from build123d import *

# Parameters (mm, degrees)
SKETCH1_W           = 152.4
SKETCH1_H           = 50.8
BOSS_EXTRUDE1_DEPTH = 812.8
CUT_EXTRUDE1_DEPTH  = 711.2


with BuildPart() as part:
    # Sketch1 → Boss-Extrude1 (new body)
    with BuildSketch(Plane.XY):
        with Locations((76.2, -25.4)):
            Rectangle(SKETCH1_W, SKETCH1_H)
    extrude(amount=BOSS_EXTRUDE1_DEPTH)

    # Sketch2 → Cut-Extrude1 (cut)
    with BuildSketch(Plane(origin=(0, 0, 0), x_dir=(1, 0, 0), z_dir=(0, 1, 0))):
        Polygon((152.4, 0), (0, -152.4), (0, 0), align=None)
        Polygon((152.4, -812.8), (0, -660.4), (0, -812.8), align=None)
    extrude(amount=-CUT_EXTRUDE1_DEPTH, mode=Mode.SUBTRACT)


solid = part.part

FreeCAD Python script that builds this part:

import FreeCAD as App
import Part
import Sketcher

V = App.Vector
Q = App.Units.Quantity


def add_polygon(sketch, points):
    """Adds a closed chain of lines whose ends are joined by coincident constraints."""
    first, n = sketch.GeometryCount, len(points)
    for a, b in zip(points, points[1:] + points[:1]):
        sketch.addGeometry(Part.LineSegment(App.Vector(*a, 0), App.Vector(*b, 0)), False)
    for i in range(n):
        sketch.addConstraint(Sketcher.Constraint("Coincident", first + i, 2, first + (i + 1) % n, 1))

doc = App.newDocument("Part")
body = doc.addObject("PartDesign::Body", "Body")

# Sketch on XY plane
sketch1 = doc.addObject("Sketcher::SketchObject", "Sketch")
body.addObject(sketch1)
sketch1.AttachmentSupport = (doc.XY_Plane, [""])
sketch1.MapMode = "FlatFace"
add_polygon(sketch1, [(0, 0), (0, -51), (152, -51), (152, 0)])  # lines 0-3
sketch1.addConstraint(Sketcher.Constraint("Vertical", 0))
sketch1.addConstraint(Sketcher.Constraint("Horizontal", 1))
sketch1.addConstraint(Sketcher.Constraint("Vertical", 2))
sketch1.addConstraint(Sketcher.Constraint("Horizontal", 3))
sketch1.addConstraint(Sketcher.Constraint("Coincident", 3, 2, -1, 1))
sketch1.addConstraint(Sketcher.Constraint("DistanceX", 1, 1, 1, 2, Q("6 in")))
sketch1.addConstraint(Sketcher.Constraint("DistanceY", 0, 2, 0, 1, Q("2 in")))
pad1 = doc.addObject("PartDesign::Pad", "Pad")
body.addObject(pad1)
pad1.Profile = sketch1
pad1.Length = Q("32 in")

# Sketch on XZ plane
sketch2 = doc.addObject("Sketcher::SketchObject", "Sketch001")
body.addObject(sketch2)
sketch2.AttachmentSupport = (doc.XZ_Plane, [""])
sketch2.MapMode = "FlatFace"
add_polygon(sketch2, [(0, 152), (152, 0), (0, 0)])  # lines 0-2
add_polygon(sketch2, [(152, 813), (0, 660), (0, 813)])  # lines 3-5
sketch2.addConstraint(Sketcher.Constraint("Horizontal", 1))
sketch2.addConstraint(Sketcher.Constraint("Vertical", 2))
sketch2.addConstraint(Sketcher.Constraint("Vertical", 4))
sketch2.addConstraint(Sketcher.Constraint("Horizontal", 5))
sketch2.addConstraint(Sketcher.Constraint("Coincident", 1, 2, -1, 1))
sketch2.addConstraint(Sketcher.Constraint("PointOnObject", 3, 2, -2))
sketch2.addConstraint(Sketcher.Constraint("Perpendicular", 0, 3))
sketch2.addConstraint(Sketcher.Constraint("Vertical", 0, 2, 5, 2))
sketch2.addConstraint(Sketcher.Constraint("Equal", 5, 2))
sketch2.addConstraint(Sketcher.Constraint("DistanceX", 1, 2, 1, 1, Q("6 in")))
sketch2.addConstraint(Sketcher.Constraint("DistanceY", -1, 1, 3, 2, Q("26 in")))
pocket1 = doc.addObject("PartDesign::Pocket", "Pocket")
body.addObject(pocket1)
pocket1.Profile = sketch2
pocket1.Length = Q("28 in")
pocket1.Reversed = True

doc.recompute()
